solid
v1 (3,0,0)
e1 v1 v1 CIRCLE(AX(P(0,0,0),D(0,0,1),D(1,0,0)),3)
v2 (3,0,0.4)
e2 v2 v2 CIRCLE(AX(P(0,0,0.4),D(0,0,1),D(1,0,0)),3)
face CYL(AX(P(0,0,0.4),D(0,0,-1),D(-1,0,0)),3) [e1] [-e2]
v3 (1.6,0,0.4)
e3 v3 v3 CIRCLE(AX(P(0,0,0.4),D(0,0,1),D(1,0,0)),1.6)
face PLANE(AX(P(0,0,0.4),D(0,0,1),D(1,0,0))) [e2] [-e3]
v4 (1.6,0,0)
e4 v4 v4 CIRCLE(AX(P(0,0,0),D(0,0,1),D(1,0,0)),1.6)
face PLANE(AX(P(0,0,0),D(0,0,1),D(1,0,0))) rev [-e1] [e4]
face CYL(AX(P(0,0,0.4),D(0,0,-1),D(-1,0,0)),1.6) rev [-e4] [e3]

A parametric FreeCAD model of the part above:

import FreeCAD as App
import Part
import Sketcher

V = App.Vector

doc = App.newDocument("Part")
body = doc.addObject("PartDesign::Body", "Body")

# Sketch on XY plane
sketch1 = doc.addObject("Sketcher::SketchObject", "Sketch")
body.addObject(sketch1)
sketch1.AttachmentSupport = (doc.XY_Plane, [""])
sketch1.MapMode = "FlatFace"
sketch1.addGeometry(Part.Circle(V(0, 0, 0), V(0, 0, 1), 3), False)
sketch1.addGeometry(Part.Circle(V(0, 0, 0), V(0, 0, 1), 1.6), False)
sketch1.addConstraint(Sketcher.Constraint("Coincident", 0, 3, -1, 1))
sketch1.addConstraint(Sketcher.Constraint("Coincident", 1, 3, -1, 1))
sketch1.addConstraint(Sketcher.Constraint("Diameter", 0, 6.0))
sketch1.addConstraint(Sketcher.Constraint("Diameter", 1, 3.2))
pad1 = doc.addObject("PartDesign::Pad", "Pad")
body.addObject(pad1)
pad1.Profile = sketch1
pad1.Length = 0.4

doc.recompute()
